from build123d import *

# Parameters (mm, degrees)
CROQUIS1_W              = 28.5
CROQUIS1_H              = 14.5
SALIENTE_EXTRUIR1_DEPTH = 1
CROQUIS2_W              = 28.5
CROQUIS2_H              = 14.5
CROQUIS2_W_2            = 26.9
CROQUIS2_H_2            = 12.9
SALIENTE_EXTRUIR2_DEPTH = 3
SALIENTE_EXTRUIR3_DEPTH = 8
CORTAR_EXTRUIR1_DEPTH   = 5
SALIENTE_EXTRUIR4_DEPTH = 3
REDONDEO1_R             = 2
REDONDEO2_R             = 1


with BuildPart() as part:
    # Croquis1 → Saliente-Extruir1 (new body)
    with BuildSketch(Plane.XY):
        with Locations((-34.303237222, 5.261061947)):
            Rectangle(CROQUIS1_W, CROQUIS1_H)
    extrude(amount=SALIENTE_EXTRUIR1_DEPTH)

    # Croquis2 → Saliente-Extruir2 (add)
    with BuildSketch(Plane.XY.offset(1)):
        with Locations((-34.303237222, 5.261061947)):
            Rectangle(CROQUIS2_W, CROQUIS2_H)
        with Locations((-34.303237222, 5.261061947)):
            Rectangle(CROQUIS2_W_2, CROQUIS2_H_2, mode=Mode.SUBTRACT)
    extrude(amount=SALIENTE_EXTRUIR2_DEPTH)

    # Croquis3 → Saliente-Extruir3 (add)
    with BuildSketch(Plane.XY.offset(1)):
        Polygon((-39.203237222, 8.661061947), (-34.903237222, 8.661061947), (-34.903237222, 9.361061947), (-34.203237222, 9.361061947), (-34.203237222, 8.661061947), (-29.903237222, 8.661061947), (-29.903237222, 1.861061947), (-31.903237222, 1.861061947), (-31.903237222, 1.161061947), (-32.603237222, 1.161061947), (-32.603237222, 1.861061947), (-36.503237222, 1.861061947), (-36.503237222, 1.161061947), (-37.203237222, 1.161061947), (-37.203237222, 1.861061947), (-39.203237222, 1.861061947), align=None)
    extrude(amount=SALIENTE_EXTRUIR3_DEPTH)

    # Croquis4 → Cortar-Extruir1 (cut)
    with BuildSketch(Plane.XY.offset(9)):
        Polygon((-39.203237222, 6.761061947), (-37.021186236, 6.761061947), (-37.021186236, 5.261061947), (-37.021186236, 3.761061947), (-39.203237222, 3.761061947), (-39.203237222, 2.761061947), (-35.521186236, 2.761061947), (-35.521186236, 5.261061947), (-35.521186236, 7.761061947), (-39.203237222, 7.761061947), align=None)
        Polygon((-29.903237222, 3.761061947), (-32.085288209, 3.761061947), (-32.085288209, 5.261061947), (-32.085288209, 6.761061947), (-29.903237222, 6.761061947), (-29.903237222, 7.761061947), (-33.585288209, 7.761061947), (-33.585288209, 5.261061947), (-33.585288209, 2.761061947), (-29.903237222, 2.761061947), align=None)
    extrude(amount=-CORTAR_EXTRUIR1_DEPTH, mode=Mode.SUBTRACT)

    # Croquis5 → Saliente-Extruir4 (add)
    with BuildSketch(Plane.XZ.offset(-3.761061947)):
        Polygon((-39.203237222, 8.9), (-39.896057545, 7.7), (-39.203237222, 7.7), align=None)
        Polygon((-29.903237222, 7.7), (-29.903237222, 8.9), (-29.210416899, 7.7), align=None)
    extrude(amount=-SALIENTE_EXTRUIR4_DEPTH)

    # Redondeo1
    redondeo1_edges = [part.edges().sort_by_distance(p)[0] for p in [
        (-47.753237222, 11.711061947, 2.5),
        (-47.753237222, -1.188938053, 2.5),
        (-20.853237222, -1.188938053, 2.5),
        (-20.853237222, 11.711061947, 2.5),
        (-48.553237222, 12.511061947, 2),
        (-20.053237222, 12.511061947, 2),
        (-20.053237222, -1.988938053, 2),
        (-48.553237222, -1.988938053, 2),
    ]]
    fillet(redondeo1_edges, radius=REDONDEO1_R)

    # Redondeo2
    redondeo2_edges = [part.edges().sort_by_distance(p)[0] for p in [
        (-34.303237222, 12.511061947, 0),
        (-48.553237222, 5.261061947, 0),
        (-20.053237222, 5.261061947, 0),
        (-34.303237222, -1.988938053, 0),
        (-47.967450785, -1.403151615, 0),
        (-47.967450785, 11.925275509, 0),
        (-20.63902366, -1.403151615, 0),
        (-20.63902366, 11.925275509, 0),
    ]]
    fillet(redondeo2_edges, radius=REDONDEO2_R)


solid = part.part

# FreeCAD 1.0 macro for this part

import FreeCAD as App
import Part
import Sketcher
Q = App.Units.Quantity


def edges_at(feature, points):
    """Names of the edges that pass closest to the given points."""
    edges = feature.Shape.Edges
    near = lambda p: min(range(len(edges)), key=lambda i: edges[i].distToShape(Part.Vertex(*p))[0])
    return sorted({f"Edge{near(p) + 1}" for p in points})

doc = App.newDocument("Part")
body = doc.addObject("PartDesign::Body", "Body")

# Sketch on XY plane
sketch1 = body.newObject("Sketcher::SketchObject", "Sketch")
sketch1.AttachmentSupport = (doc.getObject("XY_Plane"), [""])
sketch1.MapMode = "FlatFace"
sketch1.addGeometry([
    Part.LineSegment(App.Vector(-49, 13, 0), App.Vector(-49, -2, 0)),
    Part.LineSegment(App.Vector(-49, -2, 0), App.Vector(-20, -2, 0)),
    Part.LineSegment(App.Vector(-20, -2, 0), App.Vector(-20, 13, 0)),
    Part.LineSegment(App.Vector(-20, 13, 0), App.Vector(-49, 13, 0)),
], False)
sketch1.addConstraint([
    Sketcher.Constraint("Coincident", 0, 2, 1, 1),
    Sketcher.Constraint("Coincident", 1, 2, 2, 1),
    Sketcher.Constraint("Coincident", 2, 2, 3, 1),
    Sketcher.Constraint("Coincident", 3, 2, 0, 1),
    Sketcher.Constraint("Vertical", 0),
    Sketcher.Constraint("Horizontal", 1),
    Sketcher.Constraint("Vertical", 2),
    Sketcher.Constraint("Horizontal", 3),
    Sketcher.Constraint("DistanceX", 1, 1, 1, 2, Q("28.5 mm")),
    Sketcher.Constraint("DistanceY", 0, 2, 0, 1, Q("14.5 mm")),
    Sketcher.Constraint("DistanceY", 0, 2, -1, 1, Q("1.988938 mm")),
    Sketcher.Constraint("DistanceX", 0, 2, -1, 1, Q("48.553237 mm")),
])
pad1 = body.newObject("PartDesign::Pad", "Pad")
pad1.Profile = sketch1
pad1.Length = 1

# Sketch on XY plane
sketch2 = body.newObject("Sketcher::SketchObject", "Sketch001")
sketch2.AttachmentSupport = (doc.getObject("XY_Plane"), [""])
sketch2.MapMode = "FlatFace"
sketch2.AttachmentOffset = App.Placement(App.Vector(0, 0, 1), App.Rotation())
sketch2.addGeometry([
    Part.LineSegment(App.Vector(-49, 13, 0), App.Vector(-49, -2, 0)),  # 0
    Part.LineSegment(App.Vector(-49, -2, 0), App.Vector(-20, -2, 0)),  # 1
    Part.LineSegment(App.Vector(-20, -2, 0), App.Vector(-20, 13, 0)),  # 2
    Part.LineSegment(App.Vector(-20, 13, 0), App.Vector(-49, 13, 0)),  # 3
    Part.LineSegment(App.Vector(-21, -1, 0), App.Vector(-48, -1, 0)),  # 4
    Part.LineSegment(App.Vector(-48, -1, 0), App.Vector(-48, 12, 0)),  # 5
    Part.LineSegment(App.Vector(-48, 12, 0), App.Vector(-21, 12, 0)),  # 6
    Part.LineSegment(App.Vector(-21, 12, 0), App.Vector(-21, -1, 0)),  # 7
], False)
sketch2.addConstraint([
    Sketcher.Constraint("Coincident", 0, 2, 1, 1),
    Sketcher.Constraint("Coincident", 1, 2, 2, 1),
    Sketcher.Constraint("Coincident", 2, 2, 3, 1),
    Sketcher.Constraint("Coincident", 3, 2, 0, 1),
    Sketcher.Constraint("Coincident", 4, 2, 5, 1),
    Sketcher.Constraint("Coincident", 5, 2, 6, 1),
    Sketcher.Constraint("Coincident", 6, 2, 7, 1),
    Sketcher.Constraint("Coincident", 7, 2, 4, 1),
    Sketcher.Constraint("Vertical", 0),
    Sketcher.Constraint("Horizontal", 1),
    Sketcher.Constraint("Vertical", 2),
    Sketcher.Constraint("Horizontal", 3),
    Sketcher.Constraint("Horizontal", 4),
    Sketcher.Constraint("Vertical", 5),
    Sketcher.Constraint("Horizontal", 6),
    Sketcher.Constraint("Vertical", 7),
    Sketcher.Constraint("DistanceX", 1, 1, 1, 2, Q("28.5 mm")),
    Sketcher.Constraint("DistanceX", 4, 2, 4, 1, Q("26.9 mm")),
    Sketcher.Constraint("DistanceY", 0, 2, 0, 1, Q("14.5 mm")),
    Sketcher.Constraint("DistanceY", 5, 1, 5, 2, Q("12.9 mm")),
    Sketcher.Constraint("DistanceX", 0, 2, 4, 2, Q("0.8 mm")),
    Sketcher.Constraint("DistanceY", 0, 2, 4, 2, Q("0.8 mm")),
    Sketcher.Constraint("DistanceY", 0, 2, -1, 1, Q("1.988938 mm")),
    Sketcher.Constraint("DistanceX", 0, 2, -1, 1, Q("48.553237 mm")),
])
pad2 = body.newObject("PartDesign::Pad", "Pad001")
pad2.Profile = sketch2
pad2.Length = 3

# Sketch on XY plane
sketch3 = body.newObject("Sketcher::SketchObject", "Sketch002")
sketch3.AttachmentSupport = (doc.getObject("XY_Plane"), [""])
sketch3.MapMode = "FlatFace"
sketch3.AttachmentOffset = App.Placement(App.Vector(0, 0, 1), App.Rotation())
sketch3.addGeometry([
    Part.LineSegment(App.Vector(-34.9, 8.7, 0), App.Vector(-39.2, 8.7, 0)),  # 0
    Part.LineSegment(App.Vector(-39.2, 8.7, 0), App.Vector(-39.2, 1.9, 0)),  # 1
    Part.LineSegment(App.Vector(-39.2, 1.9, 0), App.Vector(-37.2, 1.9, 0)),  # 2
    Part.LineSegment(App.Vector(-37.2, 1.9, 0), App.Vector(-37.2, 1.2, 0)),  # 3
    Part.LineSegment(App.Vector(-37.2, 1.2, 0), App.Vector(-36.5, 1.2, 0)),  # 4
    Part.LineSegment(App.Vector(-36.5, 1.2, 0), App.Vector(-36.5, 1.9, 0)),  # 5
    Part.LineSegment(App.Vector(-36.5, 1.9, 0), App.Vector(-32.6, 1.9, 0)),  # 6
    Part.LineSegment(App.Vector(-32.6, 1.9, 0), App.Vector(-32.6, 1.2, 0)),  # 7
    Part.LineSegment(App.Vector(-32.6, 1.2, 0), App.Vector(-31.9, 1.2, 0)),  # 8
    Part.LineSegment(App.Vector(-31.9, 1.2, 0), App.Vector(-31.9, 1.9, 0)),  # 9
    Part.LineSegment(App.Vector(-31.9, 1.9, 0), App.Vector(-29.9, 1.9, 0)),  # 10
    Part.LineSegment(App.Vector(-29.9, 1.9, 0), App.Vector(-29.9, 8.7, 0)),  # 11
    Part.LineSegment(App.Vector(-29.9, 8.7, 0), App.Vector(-34.2, 8.7, 0)),  # 12
    Part.LineSegment(App.Vector(-34.2, 8.7, 0), App.Vector(-34.2, 9.4, 0)),  # 13
    Part.LineSegment(App.Vector(-34.2, 9.4, 0), App.Vector(-34.9, 9.4, 0)),  # 14
    Part.LineSegment(App.Vector(-34.9, 9.4, 0), App.Vector(-34.9, 8.7, 0)),  # 15
], False)
sketch3.addConstraint([
    Sketcher.Constraint("Coincident", 0, 2, 1, 1),
    Sketcher.Constraint("Coincident", 1, 2, 2, 1),
    Sketcher.Constraint("Coincident", 2, 2, 3, 1),
    Sketcher.Constraint("Coincident", 3, 2, 4, 1),
    Sketcher.Constraint("Coincident", 4, 2, 5, 1),
    Sketcher.Constraint("Coincident", 5, 2, 6, 1),
    Sketcher.Constraint("Coincident", 6, 2, 7, 1),
    Sketcher.Constraint("Coincident", 7, 2, 8, 1),
    Sketcher.Constraint("Coincident", 8, 2, 9, 1),
    Sketcher.Constraint("Coincident", 9, 2, 10, 1),
    Sketcher.Constraint("Coincident", 10, 2, 11, 1),
    Sketcher.Constraint("Coincident", 11, 2, 12, 1),
    Sketcher.Constraint("Coincident", 12, 2, 13, 1),
    Sketcher.Constraint("Coincident", 13, 2, 14, 1),
    Sketcher.Constraint("Coincident", 14, 2, 15, 1),
    Sketcher.Constraint("Coincident", 15, 2, 0, 1),
    Sketcher.Constraint("Horizontal", 0),
    Sketcher.Constraint("Vertical", 1),
    Sketcher.Constraint("Horizontal", 2),
    Sketcher.Constraint("Vertical", 3),
    Sketcher.Constraint("Horizontal", 4),
    Sketcher.Constraint("Vertical", 5),
    Sketcher.Constraint("Horizontal", 6),
    Sketcher.Constraint("Vertical", 7),
    Sketcher.Constraint("Horizontal", 8),
    Sketcher.Constraint("Vertical", 9),
    Sketcher.Constraint("Horizontal", 10),
    Sketcher.Constraint("Vertical", 11),
    Sketcher.Constraint("Horizontal", 12),
    Sketcher.Constraint("Vertical", 13),
    Sketcher.Constraint("Horizontal", 14),
    Sketcher.Constraint("Vertical", 15),
    Sketcher.Constraint("Horizontal", 2, 2, 5, 2),
    Sketcher.Constraint("Horizontal", 4, 2, 7, 2),
    Sketcher.Constraint("Horizontal", 6, 2, 9, 2),
    Sketcher.Constraint("Horizontal", 0, 2, 11, 2),
    Sketcher.Constraint("Equal", 4, 8),
    Sketcher.Constraint("Equal", 2, 10),
    Sketcher.Constraint("Equal", 0, 12),
    Sketcher.Constraint("Equal", 8, 14),
    Sketcher.Constraint("Equal", 14, 3),
    Sketcher.Constraint("Equal", 9, 13),
    Sketcher.Constraint("DistanceX", 2, 1, 2, 2, Q("2 mm")),
    Sketcher.Constraint("DistanceX", 0, 2, 0, 1, Q("4.3 mm")),
    Sketcher.Constraint("DistanceX", 4, 1, 4, 2, Q("0.7 mm")),
    Sketcher.Constraint("DistanceY", 1, 2, 1, 1, Q("6.8 mm")),
    Sketcher.Constraint("DistanceY", -1, 1, 0, 2, Q("8.661062 mm")),
    Sketcher.Constraint("DistanceX", 0, 2, -1, 1, Q("39.203237 mm")),
])
pad3 = body.newObject("PartDesign::Pad", "Pad002")
pad3.Profile = sketch3
pad3.Length = 8

# Sketch on XY plane
sketch4 = body.newObject("Sketcher::SketchObject", "Sketch003")
sketch4.AttachmentSupport = (doc.getObject("XY_Plane"), [""])
sketch4.MapMode = "FlatFace"
sketch4.AttachmentOffset = App.Placement(App.Vector(0, 0, 9), App.Rotation())
sketch4.addGeometry([
    Part.LineSegment(App.Vector(-39.2, 6.8, 0), App.Vector(-37, 6.8, 0)),  # 0
    Part.LineSegment(App.Vector(-37, 6.8, 0), App.Vector(-37, 3.8, 0)),  # 1
    Part.LineSegment(App.Vector(-37, 3.8, 0), App.Vector(-39.2, 3.8, 0)),  # 2
    Part.LineSegment(App.Vector(-39.2, 3.8, 0), App.Vector(-39.2, 2.8, 0)),  # 3
    Part.LineSegment(App.Vector(-39.2, 2.8, 0), App.Vector(-35.5, 2.8, 0)),  # 4
    Part.LineSegment(App.Vector(-35.5, 2.8, 0), App.Vector(-35.5, 7.8, 0)),  # 5
    Part.LineSegment(App.Vector(-35.5, 7.8, 0), App.Vector(-39.2, 7.8, 0)),  # 6
    Part.LineSegment(App.Vector(-39.2, 7.8, 0), App.Vector(-39.2, 6.8, 0)),  # 7
    Part.LineSegment(App.Vector(-29.9, 3.8, 0), App.Vector(-32.1, 3.8, 0)),  # 8
    Part.LineSegment(App.Vector(-32.1, 3.8, 0), App.Vector(-32.1, 6.8, 0)),  # 9
    Part.LineSegment(App.Vector(-32.1, 6.8, 0), App.Vector(-29.9, 6.8, 0)),  # 10
    Part.LineSegment(App.Vector(-29.9, 6.8, 0), App.Vector(-29.9, 7.8, 0)),  # 11
    Part.LineSegment(App.Vector(-29.9, 7.8, 0), App.Vector(-33.6, 7.8, 0)),  # 12
    Part.LineSegment(App.Vector(-33.6, 7.8, 0), App.Vector(-33.6, 2.8, 0)),  # 13
    Part.LineSegment(App.Vector(-33.6, 2.8, 0), App.Vector(-29.9, 2.8, 0)),  # 14
    Part.LineSegment(App.Vector(-29.9, 2.8, 0), App.Vector(-29.9, 3.8, 0)),  # 15
], False)
sketch4.addConstraint([
    Sketcher.Constraint("Coincident", 0, 2, 1, 1),
    Sketcher.Constraint("Coincident", 1, 2, 2, 1),
    Sketcher.Constraint("Coincident", 2, 2, 3, 1),
    Sketcher.Constraint("Coincident", 3, 2, 4, 1),
    Sketcher.Constraint("Coincident", 4, 2, 5, 1),
    Sketcher.Constraint("Coincident", 5, 2, 6, 1),
    Sketcher.Constraint("Coincident", 6, 2, 7, 1),
    Sketcher.Constraint("Coincident", 7, 2, 0, 1),
    Sketcher.Constraint("Coincident", 8, 2, 9, 1),
    Sketcher.Constraint("Coincident", 9, 2, 10, 1),
    Sketcher.Constraint("Coincident", 10, 2, 11, 1),
    Sketcher.Constraint("Coincident", 11, 2, 12, 1),
    Sketcher.Constraint("Coincident", 12, 2, 13, 1),
    Sketcher.Constraint("Coincident", 13, 2, 14, 1),
    Sketcher.Constraint("Coincident", 14, 2, 15, 1),
    Sketcher.Constraint("Coincident", 15, 2, 8, 1),
    Sketcher.Constraint("Horizontal", 0),
    Sketcher.Constraint("Vertical", 1),
    Sketcher.Constraint("Horizontal", 2),
    Sketcher.Constraint("Vertical", 3),
    Sketcher.Constraint("Horizontal", 4),
    Sketcher.Constraint("Vertical", 5),
    Sketcher.Constraint("Horizontal", 6),
    Sketcher.Constraint("Vertical", 7),
    Sketcher.Constraint("Horizontal", 8),
    Sketcher.Constraint("Vertical", 9),
    Sketcher.Constraint("Horizontal", 10),
    Sketcher.Constraint("Vertical", 11),
    Sketcher.Constraint("Horizontal", 12),
    Sketcher.Constraint("Vertical", 13),
    Sketcher.Constraint("Horizontal", 14),
    Sketcher.Constraint("Vertical", 15),
    Sketcher.Constraint("Horizontal", 2, 2, 8, 2),
    Sketcher.Constraint("Horizontal", 7, 2, 9, 2),
    Sketcher.Constraint("Horizontal", 6, 2, 11, 2),
    Sketcher.Constraint("Horizontal", 4, 2, 13, 2),
    Sketcher.Constraint("Vertical", 3, 2, 6, 2),
    Sketcher.Constraint("Vertical", 11, 2, 14, 2),
    Sketcher.Constraint("Equal", 2, 8),
    Sketcher.Constraint("Equal", 6, 12),
    Sketcher.Constraint("Equal", 3, 7),
    Sketcher.Constraint("DistanceY", 1, 2, 1, 1, Q("3 mm")),
    Sketcher.Constraint("DistanceY", 3, 2, 3, 1, Q("1 mm")),
    Sketcher.Constraint("DistanceX", 1, 2, 4, 2, Q("1.5 mm")),
    Sketcher.Constraint("DistanceX", 0, 1, 0, 2, Q("2.182051 mm")),
    Sketcher.Constraint("DistanceX", 4, 2, 8, 2, Q("3.435898 mm")),
    Sketcher.Constraint("DistanceY", -1, 1, 0, 2, Q("6.761062 mm")),
    Sketcher.Constraint("DistanceX", 8, 2, -1, 1, Q("32.085288 mm")),
])
pocket1 = body.newObject("PartDesign::Pocket", "Pocket")
pocket1.Profile = sketch4
pocket1.Length = 5

# Sketch on XZ plane
sketch5 = body.newObject("Sketcher::SketchObject", "Sketch004")
sketch5.AttachmentSupport = (doc.getObject("XZ_Plane"), [""])
sketch5.MapMode = "FlatFace"
sketch5.AttachmentOffset = App.Placement(App.Vector(0, 0, -3.761062), App.Rotation())
sketch5.addGeometry([
    Part.LineSegment(App.Vector(-39.2, 8.9, 0), App.Vector(-39.9, 7.7, 0)),  # 0
    Part.LineSegment(App.Vector(-39.9, 7.7, 0), App.Vector(-39.2, 7.7, 0)),  # 1
    Part.LineSegment(App.Vector(-39.2, 7.7, 0), App.Vector(-39.2, 8.9, 0)),  # 2
    Part.LineSegment(App.Vector(-29.9, 8.9, 0), App.Vector(-29.9, 7.7, 0)),  # 3
    Part.LineSegment(App.Vector(-29.9, 7.7, 0), App.Vector(-29.2, 7.7, 0)),  # 4
    Part.LineSegment(App.Vector(-29.2, 7.7, 0), App.Vector(-29.9, 8.9, 0)),  # 5
], False)
sketch5.addConstraint([
    Sketcher.Constraint("Coincident", 0, 2, 1, 1),
    Sketcher.Constraint("Coincident", 1, 2, 2, 1),
    Sketcher.Constraint("Coincident", 2, 2, 0, 1),
    Sketcher.Constraint("Coincident", 3, 2, 4, 1),
    Sketcher.Constraint("Coincident", 4, 2, 5, 1),
    Sketcher.Constraint("Coincident", 5, 2, 3, 1),
    Sketcher.Constraint("Horizontal", 1),
    Sketcher.Constraint("Vertical", 2),
    Sketcher.Constraint("Vertical", 3),
    Sketcher.Constraint("Horizontal", 4),
    Sketcher.Constraint("Horizontal", 1, 2, 3, 2),
    Sketcher.Constraint("Horizontal", 2, 2, 5, 2),
    Sketcher.Constraint("Equal", 1, 4),
    Sketcher.Constraint("Angle", 0, Q("-120 deg")),
    Sketcher.Constraint("DistanceY", 2, 1, 2, 2, Q("1.2 mm")),
    Sketcher.Constraint("DistanceY", -1, 1, 0, 2, Q("7.7 mm")),
    Sketcher.Constraint("DistanceX", 1, 2, 3, 2, Q("9.3 mm")),
    Sketcher.Constraint("DistanceX", 0, 2, -1, 1, Q("39.896058 mm")),
])
pad4 = body.newObject("PartDesign::Pad", "Pad003")
pad4.Profile = sketch5
pad4.Length = 3
pad4.Reversed = True
doc.recompute()

fillet = body.newObject("PartDesign::Fillet", "Fillet")
fillet.Base = (pad4, edges_at(pad4, [
    (-47.753, 11.711, 2.5),
    (-47.753, -1.189, 2.5),
    (-20.853, -1.189, 2.5),
    (-20.853, 11.711, 2.5),
    (-48.553, 12.511, 2),
    (-20.053, 12.511, 2),
    (-20.053, -1.989, 2),
    (-48.553, -1.989, 2),
]))
fillet.Radius = 2
doc.recompute()

fillet2 = body.newObject("PartDesign::Fillet", "Fillet001")
fillet2.Base = (fillet, edges_at(fillet, [
    (-34.303, 12.511, 0),
    (-48.553, 5.261, 0),
    (-20.053, 5.261, 0),
    (-34.303, -1.989, 0),
    (-47.967, -1.403, 0),
    (-47.967, 11.925, 0),
    (-20.639, -1.403, 0),
    (-20.639, 11.925, 0),
]))
fillet2.Radius = 1

doc.recompute()
